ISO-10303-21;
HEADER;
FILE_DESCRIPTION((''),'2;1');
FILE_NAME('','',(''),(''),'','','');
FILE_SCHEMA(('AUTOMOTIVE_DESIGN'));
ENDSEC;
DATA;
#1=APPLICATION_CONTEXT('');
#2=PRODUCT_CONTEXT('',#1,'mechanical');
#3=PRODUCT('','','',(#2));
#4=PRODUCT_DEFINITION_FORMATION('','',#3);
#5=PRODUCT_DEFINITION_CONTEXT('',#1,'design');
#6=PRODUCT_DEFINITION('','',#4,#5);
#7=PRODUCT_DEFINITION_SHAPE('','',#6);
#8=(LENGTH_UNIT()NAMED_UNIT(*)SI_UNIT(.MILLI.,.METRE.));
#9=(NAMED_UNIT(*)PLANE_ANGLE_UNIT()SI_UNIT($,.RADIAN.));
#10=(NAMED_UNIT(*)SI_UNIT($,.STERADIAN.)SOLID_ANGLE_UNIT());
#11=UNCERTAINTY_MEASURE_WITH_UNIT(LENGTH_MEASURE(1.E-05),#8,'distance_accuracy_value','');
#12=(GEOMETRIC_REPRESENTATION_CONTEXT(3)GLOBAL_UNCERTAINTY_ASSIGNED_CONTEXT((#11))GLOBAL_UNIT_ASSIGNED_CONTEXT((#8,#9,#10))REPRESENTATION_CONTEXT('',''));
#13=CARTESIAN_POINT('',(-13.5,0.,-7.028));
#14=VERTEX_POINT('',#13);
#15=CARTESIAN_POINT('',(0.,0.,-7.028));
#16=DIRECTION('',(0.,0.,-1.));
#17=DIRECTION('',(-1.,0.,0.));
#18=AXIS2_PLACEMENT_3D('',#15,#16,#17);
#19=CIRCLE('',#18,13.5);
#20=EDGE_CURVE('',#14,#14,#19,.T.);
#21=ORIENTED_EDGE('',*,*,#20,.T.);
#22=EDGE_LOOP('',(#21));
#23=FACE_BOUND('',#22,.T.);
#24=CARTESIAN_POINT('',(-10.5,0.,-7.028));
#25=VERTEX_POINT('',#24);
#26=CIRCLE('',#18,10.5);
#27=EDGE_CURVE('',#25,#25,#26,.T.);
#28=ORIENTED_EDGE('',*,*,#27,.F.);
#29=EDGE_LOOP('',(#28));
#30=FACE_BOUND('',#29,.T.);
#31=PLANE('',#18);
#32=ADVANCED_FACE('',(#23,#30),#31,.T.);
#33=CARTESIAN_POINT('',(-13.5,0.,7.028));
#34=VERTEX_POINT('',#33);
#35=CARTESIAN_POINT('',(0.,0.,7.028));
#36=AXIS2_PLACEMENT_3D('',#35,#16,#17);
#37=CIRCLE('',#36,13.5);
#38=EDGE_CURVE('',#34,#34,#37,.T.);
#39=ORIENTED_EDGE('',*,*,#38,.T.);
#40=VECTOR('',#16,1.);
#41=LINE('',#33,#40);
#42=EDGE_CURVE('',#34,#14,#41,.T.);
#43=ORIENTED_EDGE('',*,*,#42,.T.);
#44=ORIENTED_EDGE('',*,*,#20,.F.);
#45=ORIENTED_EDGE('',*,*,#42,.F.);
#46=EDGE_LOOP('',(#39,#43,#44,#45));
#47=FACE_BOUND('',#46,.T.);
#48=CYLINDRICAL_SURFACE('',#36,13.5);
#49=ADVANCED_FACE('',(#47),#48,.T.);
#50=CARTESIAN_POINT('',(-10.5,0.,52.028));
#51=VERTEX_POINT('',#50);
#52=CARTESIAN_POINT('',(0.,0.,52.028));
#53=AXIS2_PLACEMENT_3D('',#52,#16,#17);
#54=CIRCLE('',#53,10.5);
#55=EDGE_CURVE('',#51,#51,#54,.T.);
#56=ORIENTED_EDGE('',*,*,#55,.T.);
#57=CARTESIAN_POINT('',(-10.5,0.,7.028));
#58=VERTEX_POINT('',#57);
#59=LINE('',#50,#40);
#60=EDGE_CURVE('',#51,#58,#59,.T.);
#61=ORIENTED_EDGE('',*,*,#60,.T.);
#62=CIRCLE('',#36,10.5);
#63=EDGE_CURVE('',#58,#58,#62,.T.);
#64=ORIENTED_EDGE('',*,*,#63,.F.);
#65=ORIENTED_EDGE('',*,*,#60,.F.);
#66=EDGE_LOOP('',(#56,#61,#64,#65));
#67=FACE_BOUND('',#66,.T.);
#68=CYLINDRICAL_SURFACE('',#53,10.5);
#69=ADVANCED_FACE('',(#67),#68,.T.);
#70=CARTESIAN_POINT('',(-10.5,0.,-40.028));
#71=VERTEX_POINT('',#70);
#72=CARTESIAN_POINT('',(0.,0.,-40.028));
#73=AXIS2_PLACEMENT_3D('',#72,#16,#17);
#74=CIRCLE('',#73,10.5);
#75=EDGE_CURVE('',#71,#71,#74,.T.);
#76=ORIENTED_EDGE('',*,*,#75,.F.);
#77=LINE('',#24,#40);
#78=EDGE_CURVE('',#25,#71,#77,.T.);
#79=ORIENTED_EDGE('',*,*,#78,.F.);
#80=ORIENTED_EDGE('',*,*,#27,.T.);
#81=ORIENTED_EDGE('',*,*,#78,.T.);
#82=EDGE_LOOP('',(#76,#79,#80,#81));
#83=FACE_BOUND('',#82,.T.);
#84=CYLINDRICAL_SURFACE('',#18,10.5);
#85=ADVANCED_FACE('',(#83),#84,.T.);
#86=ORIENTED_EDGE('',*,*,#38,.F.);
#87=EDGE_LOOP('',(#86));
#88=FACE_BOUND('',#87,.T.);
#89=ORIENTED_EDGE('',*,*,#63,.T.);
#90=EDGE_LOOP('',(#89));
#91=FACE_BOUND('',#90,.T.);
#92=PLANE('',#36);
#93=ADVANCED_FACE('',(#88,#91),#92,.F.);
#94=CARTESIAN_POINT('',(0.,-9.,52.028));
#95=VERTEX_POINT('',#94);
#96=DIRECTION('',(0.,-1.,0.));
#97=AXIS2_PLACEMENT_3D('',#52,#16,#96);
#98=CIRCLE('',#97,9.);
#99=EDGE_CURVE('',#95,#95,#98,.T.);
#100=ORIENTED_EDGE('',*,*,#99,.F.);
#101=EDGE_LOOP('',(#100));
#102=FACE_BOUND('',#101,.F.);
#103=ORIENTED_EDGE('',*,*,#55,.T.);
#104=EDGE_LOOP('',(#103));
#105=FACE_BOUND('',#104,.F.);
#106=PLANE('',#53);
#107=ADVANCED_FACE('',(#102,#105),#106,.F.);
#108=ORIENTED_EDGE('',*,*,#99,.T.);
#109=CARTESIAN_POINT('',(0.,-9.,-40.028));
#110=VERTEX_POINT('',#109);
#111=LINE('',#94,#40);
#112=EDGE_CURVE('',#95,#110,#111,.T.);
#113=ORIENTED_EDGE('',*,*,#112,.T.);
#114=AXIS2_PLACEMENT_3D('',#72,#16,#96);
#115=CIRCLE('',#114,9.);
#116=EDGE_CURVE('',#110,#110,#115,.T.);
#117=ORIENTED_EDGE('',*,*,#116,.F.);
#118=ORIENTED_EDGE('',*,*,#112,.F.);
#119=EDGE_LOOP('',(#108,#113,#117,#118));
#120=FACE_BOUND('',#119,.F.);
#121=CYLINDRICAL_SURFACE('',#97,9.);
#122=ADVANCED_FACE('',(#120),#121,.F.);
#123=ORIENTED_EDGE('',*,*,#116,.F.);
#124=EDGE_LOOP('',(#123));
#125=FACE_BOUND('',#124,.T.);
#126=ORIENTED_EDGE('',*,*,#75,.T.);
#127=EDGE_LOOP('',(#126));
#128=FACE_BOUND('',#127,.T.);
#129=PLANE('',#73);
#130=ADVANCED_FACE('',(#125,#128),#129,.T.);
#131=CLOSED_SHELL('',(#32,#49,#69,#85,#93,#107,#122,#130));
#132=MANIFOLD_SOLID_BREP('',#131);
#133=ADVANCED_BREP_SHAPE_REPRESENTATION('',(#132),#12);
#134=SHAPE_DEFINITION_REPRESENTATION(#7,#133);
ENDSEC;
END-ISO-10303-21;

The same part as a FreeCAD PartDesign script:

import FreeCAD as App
import Part
import Sketcher

V = App.Vector

doc = App.newDocument("Part")
params = doc.addObject("Spreadsheet::Sheet", "Params")
for row, (alias, value) in enumerate([
    ("sketch1_height", "45 mm"),
    ("sketch1_height2", "33 mm"),
    ("sketch1_width", "3 mm"),
    ("sketch1_width2", "10.5 mm"),
    ("revolution_angle", "360 deg"),
    ("sketch2_diameter", "18 mm"),
    ("hole_diameter", "18 mm"),
], start=1):
    params.set(f"A{row}", alias)
    params.set(f"B{row}", "=" + value)
    params.setAlias(f"B{row}", alias)

body = doc.addObject("PartDesign::Body", "Body")

# Sketch on XZ plane
sketch1 = body.newObject("Sketcher::SketchObject", "Sketch")
sketch1.AttachmentSupport = (doc.getObject("XZ_Plane"), [""])
sketch1.MapMode = "FlatFace"
sketch1.addGeometry([
    Part.LineSegment(V(-10.5, 7.028, 0), V(-10.5, 52.028, 0)),  # 0
    Part.LineSegment(V(-10.5, 52.028, 0), V(0, 52.028, 0)),  # 1
    Part.LineSegment(V(0, 52.028, 0), V(0, -40.028, 0)),  # 2
    Part.LineSegment(V(0, -40.028, 0), V(-10.5, -40.028, 0)),  # 3
    Part.LineSegment(V(-10.5, -40.028, 0), V(-10.5, -7.028, 0)),  # 4
    Part.LineSegment(V(-10.5, -7.028, 0), V(-13.5, -7.028, 0)),  # 5
    Part.LineSegment(V(-13.5, -7.028, 0), V(-13.5, 7.028, 0)),  # 6
    Part.LineSegment(V(-13.5, 7.028, 0), V(-10.5, 7.028, 0)),  # 7
], False)
sketch1.addConstraint([
    Sketcher.Constraint("Coincident", 0, 2, 1, 1),
    Sketcher.Constraint("Coincident", 1, 2, 2, 1),
    Sketcher.Constraint("Coincident", 2, 2, 3, 1),
    Sketcher.Constraint("Coincident", 3, 2, 4, 1),
    Sketcher.Constraint("Coincident", 4, 2, 5, 1),
    Sketcher.Constraint("Coincident", 5, 2, 6, 1),
    Sketcher.Constraint("Coincident", 6, 2, 7, 1),
    Sketcher.Constraint("Coincident", 7, 2, 0, 1),
    Sketcher.Constraint("Vertical", 0),
    Sketcher.Constraint("Horizontal", 1),
    Sketcher.Constraint("Vertical", 2),
    Sketcher.Constraint("Horizontal", 3),
    Sketcher.Constraint("Vertical", 4),
    Sketcher.Constraint("Horizontal", 5),
    Sketcher.Constraint("Vertical", 6),
    Sketcher.Constraint("Horizontal", 7),
    Sketcher.Constraint("Symmetric", 4, 2, 7, 2, -1),
    Sketcher.Constraint("PointOnObject", 1, 2, -2),
    Sketcher.Constraint("DistanceY", 0, 1, 0, 2, 45.0),
    Sketcher.Constraint("DistanceY", 4, 1, 4, 2, 33.0),
    Sketcher.Constraint("DistanceX", 5, 2, 5, 1, 3.0),
    Sketcher.Constraint("DistanceY", 6, 1, 6, 2, 14.056),
    Sketcher.Constraint("DistanceX", 1, 1, 1, 2, 10.5),
])
sketch1.setExpression("Constraints[18]", "Params.sketch1_height")
sketch1.setExpression("Constraints[19]", "Params.sketch1_height2")
sketch1.setExpression("Constraints[20]", "Params.sketch1_width")
sketch1.setExpression("Constraints[22]", "Params.sketch1_width2")
revolution = body.newObject("PartDesign::Revolution", "Revolution")
revolution.Profile = sketch1
revolution.ReferenceAxis = (sketch1, ["V_Axis"])
revolution.setExpression("Angle", "Params.revolution_angle")

# Sketch on XY plane
sketch2 = body.newObject("Sketcher::SketchObject", "Sketch001")
sketch2.AttachmentSupport = (doc.getObject("XY_Plane"), [""])
sketch2.MapMode = "FlatFace"
sketch2.AttachmentOffset = App.Placement(V(0, 0, 52.028), App.Rotation())
sketch2.addGeometry(Part.Circle(V(0, 0, 0), V(0, 0, 1), 9), False)
sketch2.addConstraint([
    Sketcher.Constraint("Coincident", 0, 3, -1, 1),
    Sketcher.Constraint("Diameter", 0, 18.0),
])
sketch2.setExpression("Constraints[1]", "Params.sketch2_diameter")
doc.recompute()
hole = body.newObject("PartDesign::Hole", "Hole")
hole.Profile = sketch2
hole.ThreadType = "None"
hole.setExpression("Diameter", "Params.hole_diameter")
hole.DepthType = "ThroughAll"

doc.recompute()
